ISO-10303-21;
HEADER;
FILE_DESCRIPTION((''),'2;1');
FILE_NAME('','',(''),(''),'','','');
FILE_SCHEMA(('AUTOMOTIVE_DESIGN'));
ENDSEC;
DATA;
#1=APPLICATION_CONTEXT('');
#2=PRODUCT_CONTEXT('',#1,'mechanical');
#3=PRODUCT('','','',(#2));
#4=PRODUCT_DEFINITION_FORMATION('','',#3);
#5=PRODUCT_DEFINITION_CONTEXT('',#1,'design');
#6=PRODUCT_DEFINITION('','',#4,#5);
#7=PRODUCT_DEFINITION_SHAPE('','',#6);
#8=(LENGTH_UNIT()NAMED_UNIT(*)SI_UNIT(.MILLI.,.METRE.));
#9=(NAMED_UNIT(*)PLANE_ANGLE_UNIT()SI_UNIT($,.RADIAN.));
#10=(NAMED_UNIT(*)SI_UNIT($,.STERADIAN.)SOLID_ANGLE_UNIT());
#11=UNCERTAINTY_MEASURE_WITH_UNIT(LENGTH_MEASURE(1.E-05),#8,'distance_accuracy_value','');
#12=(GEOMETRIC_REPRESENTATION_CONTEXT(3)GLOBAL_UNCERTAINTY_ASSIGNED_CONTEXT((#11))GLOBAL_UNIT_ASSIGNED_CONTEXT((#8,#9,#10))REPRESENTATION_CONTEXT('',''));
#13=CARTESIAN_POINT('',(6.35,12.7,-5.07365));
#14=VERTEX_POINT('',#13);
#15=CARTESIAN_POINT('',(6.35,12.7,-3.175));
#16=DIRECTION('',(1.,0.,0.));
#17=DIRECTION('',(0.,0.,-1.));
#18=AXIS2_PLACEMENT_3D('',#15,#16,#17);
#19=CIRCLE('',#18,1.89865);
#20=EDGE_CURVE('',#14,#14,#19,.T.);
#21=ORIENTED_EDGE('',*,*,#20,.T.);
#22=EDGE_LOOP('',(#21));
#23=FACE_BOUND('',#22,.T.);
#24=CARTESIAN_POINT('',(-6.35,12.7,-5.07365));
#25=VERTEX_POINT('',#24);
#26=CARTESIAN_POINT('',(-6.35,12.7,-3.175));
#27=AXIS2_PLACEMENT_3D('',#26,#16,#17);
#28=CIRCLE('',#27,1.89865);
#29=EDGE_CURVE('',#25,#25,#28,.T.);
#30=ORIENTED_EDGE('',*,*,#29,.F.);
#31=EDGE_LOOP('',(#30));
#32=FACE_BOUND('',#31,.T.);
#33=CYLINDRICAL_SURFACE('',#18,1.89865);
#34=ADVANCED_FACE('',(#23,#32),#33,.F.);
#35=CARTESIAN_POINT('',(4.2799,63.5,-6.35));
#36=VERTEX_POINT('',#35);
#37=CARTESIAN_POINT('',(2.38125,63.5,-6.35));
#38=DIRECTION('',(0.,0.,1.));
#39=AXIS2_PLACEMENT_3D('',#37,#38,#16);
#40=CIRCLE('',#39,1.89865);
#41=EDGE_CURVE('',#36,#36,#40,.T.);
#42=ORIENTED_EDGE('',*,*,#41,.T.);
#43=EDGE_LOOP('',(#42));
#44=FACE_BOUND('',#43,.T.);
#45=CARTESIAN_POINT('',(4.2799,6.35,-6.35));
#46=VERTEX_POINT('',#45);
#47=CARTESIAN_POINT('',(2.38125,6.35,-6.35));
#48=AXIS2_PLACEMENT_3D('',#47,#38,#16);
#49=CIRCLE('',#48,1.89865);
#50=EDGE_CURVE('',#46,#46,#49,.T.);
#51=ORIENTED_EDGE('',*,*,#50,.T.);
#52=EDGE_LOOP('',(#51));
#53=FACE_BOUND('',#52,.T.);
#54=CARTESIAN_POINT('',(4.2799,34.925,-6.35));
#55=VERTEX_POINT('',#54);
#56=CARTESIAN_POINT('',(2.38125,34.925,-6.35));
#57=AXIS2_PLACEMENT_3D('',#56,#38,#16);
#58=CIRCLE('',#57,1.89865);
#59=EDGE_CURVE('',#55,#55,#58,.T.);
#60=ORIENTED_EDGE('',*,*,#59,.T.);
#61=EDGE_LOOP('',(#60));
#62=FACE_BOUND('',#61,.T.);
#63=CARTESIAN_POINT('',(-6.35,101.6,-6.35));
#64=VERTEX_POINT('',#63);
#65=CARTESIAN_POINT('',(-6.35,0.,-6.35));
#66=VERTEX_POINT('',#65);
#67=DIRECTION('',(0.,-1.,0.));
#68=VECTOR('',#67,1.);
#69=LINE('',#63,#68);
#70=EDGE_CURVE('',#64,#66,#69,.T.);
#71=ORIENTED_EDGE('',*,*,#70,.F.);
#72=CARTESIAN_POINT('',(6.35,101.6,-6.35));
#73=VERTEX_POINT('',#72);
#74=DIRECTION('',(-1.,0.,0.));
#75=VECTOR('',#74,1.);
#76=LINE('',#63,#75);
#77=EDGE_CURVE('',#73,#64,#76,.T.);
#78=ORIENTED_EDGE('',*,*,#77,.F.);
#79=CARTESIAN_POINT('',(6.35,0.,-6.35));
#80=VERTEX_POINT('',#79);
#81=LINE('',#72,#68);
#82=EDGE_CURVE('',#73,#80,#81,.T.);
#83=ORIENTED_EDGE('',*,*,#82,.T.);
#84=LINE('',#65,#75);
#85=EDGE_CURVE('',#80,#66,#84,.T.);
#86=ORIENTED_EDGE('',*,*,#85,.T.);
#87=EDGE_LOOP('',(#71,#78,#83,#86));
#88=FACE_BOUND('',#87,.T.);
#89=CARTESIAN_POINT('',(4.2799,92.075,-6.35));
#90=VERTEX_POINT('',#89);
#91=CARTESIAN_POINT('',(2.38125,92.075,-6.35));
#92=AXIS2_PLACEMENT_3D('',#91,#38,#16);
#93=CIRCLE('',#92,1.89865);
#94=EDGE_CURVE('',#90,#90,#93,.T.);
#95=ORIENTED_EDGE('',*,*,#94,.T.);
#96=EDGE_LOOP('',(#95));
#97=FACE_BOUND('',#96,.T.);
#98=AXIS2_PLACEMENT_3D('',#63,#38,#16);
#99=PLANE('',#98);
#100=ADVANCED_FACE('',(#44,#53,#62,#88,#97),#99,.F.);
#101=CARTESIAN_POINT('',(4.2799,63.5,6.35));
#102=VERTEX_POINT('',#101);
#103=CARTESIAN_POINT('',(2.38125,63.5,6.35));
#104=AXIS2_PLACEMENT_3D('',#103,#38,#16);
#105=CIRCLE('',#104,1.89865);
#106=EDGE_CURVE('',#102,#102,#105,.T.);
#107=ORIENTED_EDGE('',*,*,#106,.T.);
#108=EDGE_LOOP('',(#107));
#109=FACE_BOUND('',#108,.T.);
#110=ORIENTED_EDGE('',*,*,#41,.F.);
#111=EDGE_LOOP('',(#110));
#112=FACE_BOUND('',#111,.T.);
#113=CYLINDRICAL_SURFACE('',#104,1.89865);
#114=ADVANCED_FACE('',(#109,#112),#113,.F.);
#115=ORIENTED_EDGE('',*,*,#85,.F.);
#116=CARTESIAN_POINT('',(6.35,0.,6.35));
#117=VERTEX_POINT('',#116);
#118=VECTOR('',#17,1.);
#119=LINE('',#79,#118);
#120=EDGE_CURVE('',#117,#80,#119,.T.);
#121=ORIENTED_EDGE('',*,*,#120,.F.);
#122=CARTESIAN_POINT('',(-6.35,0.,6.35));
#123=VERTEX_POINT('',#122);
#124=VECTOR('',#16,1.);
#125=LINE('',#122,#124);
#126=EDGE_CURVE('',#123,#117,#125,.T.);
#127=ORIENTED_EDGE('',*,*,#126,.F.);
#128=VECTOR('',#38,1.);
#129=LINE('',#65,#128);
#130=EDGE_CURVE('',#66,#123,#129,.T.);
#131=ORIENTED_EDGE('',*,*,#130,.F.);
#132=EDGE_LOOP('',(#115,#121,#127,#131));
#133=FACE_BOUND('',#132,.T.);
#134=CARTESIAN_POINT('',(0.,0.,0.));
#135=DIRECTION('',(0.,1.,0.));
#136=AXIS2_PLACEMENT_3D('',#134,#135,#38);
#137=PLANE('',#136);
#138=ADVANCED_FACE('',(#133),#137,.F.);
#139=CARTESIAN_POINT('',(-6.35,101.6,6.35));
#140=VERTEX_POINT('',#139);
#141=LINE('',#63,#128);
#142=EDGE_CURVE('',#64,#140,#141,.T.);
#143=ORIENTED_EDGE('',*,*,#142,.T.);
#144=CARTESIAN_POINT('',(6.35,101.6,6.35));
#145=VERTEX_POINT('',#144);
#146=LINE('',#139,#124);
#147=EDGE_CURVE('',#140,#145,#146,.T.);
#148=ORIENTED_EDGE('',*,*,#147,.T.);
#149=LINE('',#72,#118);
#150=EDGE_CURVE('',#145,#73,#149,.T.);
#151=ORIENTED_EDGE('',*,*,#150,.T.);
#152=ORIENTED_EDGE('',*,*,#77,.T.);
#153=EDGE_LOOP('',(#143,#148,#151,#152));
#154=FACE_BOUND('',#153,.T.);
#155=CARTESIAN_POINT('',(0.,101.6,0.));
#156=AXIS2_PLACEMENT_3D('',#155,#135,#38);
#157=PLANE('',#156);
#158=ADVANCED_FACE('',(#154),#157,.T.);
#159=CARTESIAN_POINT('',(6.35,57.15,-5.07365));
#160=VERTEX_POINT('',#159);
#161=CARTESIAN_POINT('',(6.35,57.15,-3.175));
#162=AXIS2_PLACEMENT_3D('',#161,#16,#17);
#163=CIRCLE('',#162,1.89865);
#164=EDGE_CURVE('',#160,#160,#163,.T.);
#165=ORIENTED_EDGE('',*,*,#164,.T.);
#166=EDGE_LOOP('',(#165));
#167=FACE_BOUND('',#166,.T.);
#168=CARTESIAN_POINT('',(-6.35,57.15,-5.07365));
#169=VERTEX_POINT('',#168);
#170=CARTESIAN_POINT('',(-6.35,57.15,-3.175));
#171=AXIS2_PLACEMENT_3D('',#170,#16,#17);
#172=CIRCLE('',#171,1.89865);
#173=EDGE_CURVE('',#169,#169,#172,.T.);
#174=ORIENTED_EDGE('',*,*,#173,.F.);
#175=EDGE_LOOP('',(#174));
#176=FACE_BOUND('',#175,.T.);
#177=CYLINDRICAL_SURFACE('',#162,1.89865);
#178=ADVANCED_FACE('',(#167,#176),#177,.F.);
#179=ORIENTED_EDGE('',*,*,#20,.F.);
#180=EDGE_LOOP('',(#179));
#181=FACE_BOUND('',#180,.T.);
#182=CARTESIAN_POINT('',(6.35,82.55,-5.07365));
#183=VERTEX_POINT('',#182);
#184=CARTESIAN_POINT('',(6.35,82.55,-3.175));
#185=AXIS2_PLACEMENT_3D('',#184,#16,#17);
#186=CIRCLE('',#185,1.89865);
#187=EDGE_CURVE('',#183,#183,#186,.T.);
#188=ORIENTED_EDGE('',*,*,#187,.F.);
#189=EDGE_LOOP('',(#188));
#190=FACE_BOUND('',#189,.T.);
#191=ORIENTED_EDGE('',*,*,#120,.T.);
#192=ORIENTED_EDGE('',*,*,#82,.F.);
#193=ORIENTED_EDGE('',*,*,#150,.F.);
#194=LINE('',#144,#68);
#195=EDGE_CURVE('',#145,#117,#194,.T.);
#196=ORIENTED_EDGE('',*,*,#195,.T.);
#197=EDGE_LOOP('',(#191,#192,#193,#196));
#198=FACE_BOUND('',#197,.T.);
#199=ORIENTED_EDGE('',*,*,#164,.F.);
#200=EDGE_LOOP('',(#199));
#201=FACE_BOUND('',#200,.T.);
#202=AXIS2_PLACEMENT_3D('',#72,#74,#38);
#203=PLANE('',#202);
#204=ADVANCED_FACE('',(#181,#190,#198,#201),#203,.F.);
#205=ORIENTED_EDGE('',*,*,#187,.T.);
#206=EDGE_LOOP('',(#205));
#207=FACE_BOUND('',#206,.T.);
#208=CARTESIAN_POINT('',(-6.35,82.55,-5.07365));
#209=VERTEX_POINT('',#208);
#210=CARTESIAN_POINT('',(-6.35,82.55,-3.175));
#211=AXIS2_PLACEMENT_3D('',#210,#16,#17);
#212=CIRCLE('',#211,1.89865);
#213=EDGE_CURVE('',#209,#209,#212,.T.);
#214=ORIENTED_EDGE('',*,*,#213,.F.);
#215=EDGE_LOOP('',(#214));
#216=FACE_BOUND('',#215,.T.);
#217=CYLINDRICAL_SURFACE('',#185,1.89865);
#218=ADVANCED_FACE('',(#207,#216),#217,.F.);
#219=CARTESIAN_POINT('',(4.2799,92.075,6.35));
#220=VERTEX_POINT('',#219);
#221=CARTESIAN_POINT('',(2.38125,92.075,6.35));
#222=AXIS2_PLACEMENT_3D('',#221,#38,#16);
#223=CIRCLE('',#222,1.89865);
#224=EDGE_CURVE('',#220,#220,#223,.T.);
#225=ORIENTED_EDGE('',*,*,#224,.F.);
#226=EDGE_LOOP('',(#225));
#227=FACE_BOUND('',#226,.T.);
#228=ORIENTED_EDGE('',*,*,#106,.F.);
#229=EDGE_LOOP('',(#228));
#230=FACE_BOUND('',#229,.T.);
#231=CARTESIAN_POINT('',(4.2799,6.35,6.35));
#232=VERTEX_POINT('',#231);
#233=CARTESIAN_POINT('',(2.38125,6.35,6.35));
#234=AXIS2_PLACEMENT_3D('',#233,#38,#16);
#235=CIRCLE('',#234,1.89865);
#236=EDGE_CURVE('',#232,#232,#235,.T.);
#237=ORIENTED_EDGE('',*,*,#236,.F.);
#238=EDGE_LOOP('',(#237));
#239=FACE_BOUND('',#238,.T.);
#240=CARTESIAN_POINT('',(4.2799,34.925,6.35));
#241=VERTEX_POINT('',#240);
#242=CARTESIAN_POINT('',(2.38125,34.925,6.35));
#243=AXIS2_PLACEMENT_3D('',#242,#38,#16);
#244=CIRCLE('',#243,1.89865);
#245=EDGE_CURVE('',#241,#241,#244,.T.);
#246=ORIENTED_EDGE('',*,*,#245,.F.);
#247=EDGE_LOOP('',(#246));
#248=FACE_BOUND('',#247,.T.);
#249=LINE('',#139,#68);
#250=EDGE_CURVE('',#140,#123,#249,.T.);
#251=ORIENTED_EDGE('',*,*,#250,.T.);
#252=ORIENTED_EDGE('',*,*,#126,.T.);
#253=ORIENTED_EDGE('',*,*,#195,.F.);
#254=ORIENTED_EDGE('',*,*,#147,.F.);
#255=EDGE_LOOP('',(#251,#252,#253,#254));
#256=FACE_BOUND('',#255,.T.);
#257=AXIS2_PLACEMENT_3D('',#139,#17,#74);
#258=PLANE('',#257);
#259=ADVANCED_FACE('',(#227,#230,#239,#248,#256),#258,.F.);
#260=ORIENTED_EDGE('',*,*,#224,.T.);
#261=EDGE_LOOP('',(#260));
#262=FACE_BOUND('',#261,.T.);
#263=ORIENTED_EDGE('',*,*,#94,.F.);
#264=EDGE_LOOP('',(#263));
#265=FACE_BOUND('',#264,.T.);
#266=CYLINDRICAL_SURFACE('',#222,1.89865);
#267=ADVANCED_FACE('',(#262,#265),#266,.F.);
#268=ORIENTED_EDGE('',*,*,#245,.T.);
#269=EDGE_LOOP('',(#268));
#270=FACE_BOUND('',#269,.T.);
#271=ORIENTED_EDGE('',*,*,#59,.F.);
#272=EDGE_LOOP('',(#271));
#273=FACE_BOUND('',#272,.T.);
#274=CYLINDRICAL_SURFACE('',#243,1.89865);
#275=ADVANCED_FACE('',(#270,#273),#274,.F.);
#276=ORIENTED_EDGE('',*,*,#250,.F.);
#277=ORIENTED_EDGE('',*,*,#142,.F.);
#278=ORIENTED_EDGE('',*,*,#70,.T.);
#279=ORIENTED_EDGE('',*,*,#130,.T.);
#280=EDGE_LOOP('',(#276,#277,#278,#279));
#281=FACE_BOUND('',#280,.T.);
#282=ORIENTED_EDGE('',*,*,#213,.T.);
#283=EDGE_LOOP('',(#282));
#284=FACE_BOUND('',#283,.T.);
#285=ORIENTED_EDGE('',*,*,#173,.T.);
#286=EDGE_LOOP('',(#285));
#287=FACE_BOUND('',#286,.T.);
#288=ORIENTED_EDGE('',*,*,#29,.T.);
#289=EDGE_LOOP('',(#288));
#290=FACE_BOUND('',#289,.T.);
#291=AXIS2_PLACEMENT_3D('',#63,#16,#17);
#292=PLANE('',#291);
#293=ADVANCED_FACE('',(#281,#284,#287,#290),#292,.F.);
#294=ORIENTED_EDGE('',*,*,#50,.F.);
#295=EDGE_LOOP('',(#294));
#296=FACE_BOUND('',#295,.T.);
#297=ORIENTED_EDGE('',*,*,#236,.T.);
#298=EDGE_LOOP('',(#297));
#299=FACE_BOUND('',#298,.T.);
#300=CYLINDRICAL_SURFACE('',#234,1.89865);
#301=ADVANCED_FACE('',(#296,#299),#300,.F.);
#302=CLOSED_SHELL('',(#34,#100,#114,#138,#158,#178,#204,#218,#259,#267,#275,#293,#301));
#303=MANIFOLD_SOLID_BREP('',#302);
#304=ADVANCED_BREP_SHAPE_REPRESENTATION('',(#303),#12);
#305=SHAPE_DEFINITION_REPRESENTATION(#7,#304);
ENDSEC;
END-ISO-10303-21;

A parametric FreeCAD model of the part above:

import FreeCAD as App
import Part
import Sketcher

V = App.Vector
Q = App.Units.Quantity


def add_polygon(sketch, points):
    """Adds a closed chain of lines whose ends are joined by coincident constraints."""
    first, n = sketch.GeometryCount, len(points)
    for a, b in zip(points, points[1:] + points[:1]):
        sketch.addGeometry(Part.LineSegment(App.Vector(*a, 0), App.Vector(*b, 0)), False)
    for i in range(n):
        sketch.addConstraint(Sketcher.Constraint("Coincident", first + i, 2, first + (i + 1) % n, 1))

doc = App.newDocument("Part")
params = doc.addObject("Spreadsheet::Sheet", "Params")
for row, (alias, value) in enumerate([
    ("sketch1_width", "0.5 in"),
    ("pad1_length", "4 in"),
    ("hole_diameter", "0.1495 in"),
    ("hole2_diameter", "0.1495 in"),
], start=1):
    params.set(f"A{row}", alias)
    params.set(f"B{row}", "=" + value)
    params.setAlias(f"B{row}", alias)

body = doc.addObject("PartDesign::Body", "Body")

# Sketch on XZ plane
sketch1 = body.newObject("Sketcher::SketchObject", "Sketch")
sketch1.AttachmentSupport = (doc.getObject("XZ_Plane"), [""])
sketch1.MapMode = "FlatFace"
add_polygon(sketch1, [(-6, -6), (-6, 6), (6, 6), (6, -6)])  # lines 0-3
sketch1.addConstraint([
    Sketcher.Constraint("Vertical", 0),
    Sketcher.Constraint("Horizontal", 1),
    Sketcher.Constraint("Vertical", 2),
    Sketcher.Constraint("Horizontal", 3),
    Sketcher.Constraint("Symmetric", 0, 2, 2, 2, -1, 1),
    Sketcher.Constraint("Equal", 3, 0),
    Sketcher.Constraint("DistanceX", 1, 1, 1, 2, Q("0.5 in")),
])
sketch1.setExpression("Constraints[10]", "Params.sketch1_width")
pad1 = body.newObject("PartDesign::Pad", "Pad")
pad1.Profile = sketch1
pad1.setExpression("Length", "Params.pad1_length")
pad1.Reversed = True

# Sketch on YZ plane
sketch2 = body.newObject("Sketcher::SketchObject", "Sketch001")
sketch2.AttachmentSupport = (doc.getObject("YZ_Plane"), [""])
sketch2.MapMode = "FlatFace"
sketch2.AttachmentOffset = App.Placement(V(0, 0, 0.25 * 25.4), App.Rotation())
sketch2.addGeometry([
    Part.Circle(V(82.5, -3.2, 0), V(0, 0, 1), 1.9),
    Part.Circle(V(12.7, -3.2, 0), V(0, 0, 1), 1.9),
    Part.Circle(V(57.1, -3.2, 0), V(0, 0, 1), 1.9),
], False)
sketch2.addConstraint([
    Sketcher.Constraint("Equal", 0, 1),
    Sketcher.Constraint("Equal", 1, 2),
    Sketcher.Constraint("Horizontal", 0, 3, 1, 3),
    Sketcher.Constraint("Horizontal", 1, 3, 2, 3),
    Sketcher.Constraint("DistanceX", 2, 3, 0, 3, Q("1 in")),
    Sketcher.Constraint("Diameter", 0, Q("0.1495 in")),
    Sketcher.Constraint("DistanceX", -1, 1, 1, 3, Q("0.5 in")),
    Sketcher.Constraint("DistanceX", -1, 1, 0, 3, Q("3.25 in")),
    Sketcher.Constraint("DistanceY", 0, 3, -1, 1, Q("0.125 in")),
])
doc.recompute()
hole = body.newObject("PartDesign::Hole", "Hole")
hole.Profile = sketch2
hole.ThreadType = "None"
hole.setExpression("Diameter", "Params.hole_diameter")
hole.DepthType = "ThroughAll"

# Sketch on XY plane
sketch3 = body.newObject("Sketcher::SketchObject", "Sketch002")
sketch3.AttachmentSupport = (doc.getObject("XY_Plane"), [""])
sketch3.MapMode = "FlatFace"
sketch3.AttachmentOffset = App.Placement(V(0, 0, 0.25 * 25.4), App.Rotation())
sketch3.addGeometry([
    Part.Circle(V(2.4, 92.1, 0), V(0, 0, 1), 1.9),
    Part.Circle(V(2.4, 6.3, 0), V(0, 0, 1), 1.9),
    Part.Circle(V(2.4, 34.9, 0), V(0, 0, 1), 1.9),
    Part.Circle(V(2.4, 63.5, 0), V(0, 0, 1), 1.9),
], False)
sketch3.addConstraint([
    Sketcher.Constraint("Equal", 0, 1),
    Sketcher.Constraint("Equal", 1, 2),
    Sketcher.Constraint("Equal", 2, 3),
    Sketcher.Constraint("Vertical", 0, 3, 1, 3),
    Sketcher.Constraint("Vertical", 1, 3, 2, 3),
    Sketcher.Constraint("Vertical", 2, 3, 3, 3),
    Sketcher.Constraint("Diameter", 0, Q("0.1495 in")),
    Sketcher.Constraint("DistanceY", -1, 1, 3, 3, Q("2.5 in")),
    Sketcher.Constraint("DistanceY", -1, 1, 1, 3, Q("0.25 in")),
    Sketcher.Constraint("DistanceY", 2, 3, 0, 3, Q("2.25 in")),
    Sketcher.Constraint("DistanceX", -1, 1, 0, 3, Q("0.09375 in")),
    Sketcher.Constraint("DistanceY", -1, 1, 0, 3, Q("3.625 in")),
])
doc.recompute()
hole2 = body.newObject("PartDesign::Hole", "Hole001")
hole2.Profile = sketch3
hole2.ThreadType = "None"
hole2.setExpression("Diameter", "Params.hole2_diameter")
hole2.DepthType = "ThroughAll"

doc.recompute()
